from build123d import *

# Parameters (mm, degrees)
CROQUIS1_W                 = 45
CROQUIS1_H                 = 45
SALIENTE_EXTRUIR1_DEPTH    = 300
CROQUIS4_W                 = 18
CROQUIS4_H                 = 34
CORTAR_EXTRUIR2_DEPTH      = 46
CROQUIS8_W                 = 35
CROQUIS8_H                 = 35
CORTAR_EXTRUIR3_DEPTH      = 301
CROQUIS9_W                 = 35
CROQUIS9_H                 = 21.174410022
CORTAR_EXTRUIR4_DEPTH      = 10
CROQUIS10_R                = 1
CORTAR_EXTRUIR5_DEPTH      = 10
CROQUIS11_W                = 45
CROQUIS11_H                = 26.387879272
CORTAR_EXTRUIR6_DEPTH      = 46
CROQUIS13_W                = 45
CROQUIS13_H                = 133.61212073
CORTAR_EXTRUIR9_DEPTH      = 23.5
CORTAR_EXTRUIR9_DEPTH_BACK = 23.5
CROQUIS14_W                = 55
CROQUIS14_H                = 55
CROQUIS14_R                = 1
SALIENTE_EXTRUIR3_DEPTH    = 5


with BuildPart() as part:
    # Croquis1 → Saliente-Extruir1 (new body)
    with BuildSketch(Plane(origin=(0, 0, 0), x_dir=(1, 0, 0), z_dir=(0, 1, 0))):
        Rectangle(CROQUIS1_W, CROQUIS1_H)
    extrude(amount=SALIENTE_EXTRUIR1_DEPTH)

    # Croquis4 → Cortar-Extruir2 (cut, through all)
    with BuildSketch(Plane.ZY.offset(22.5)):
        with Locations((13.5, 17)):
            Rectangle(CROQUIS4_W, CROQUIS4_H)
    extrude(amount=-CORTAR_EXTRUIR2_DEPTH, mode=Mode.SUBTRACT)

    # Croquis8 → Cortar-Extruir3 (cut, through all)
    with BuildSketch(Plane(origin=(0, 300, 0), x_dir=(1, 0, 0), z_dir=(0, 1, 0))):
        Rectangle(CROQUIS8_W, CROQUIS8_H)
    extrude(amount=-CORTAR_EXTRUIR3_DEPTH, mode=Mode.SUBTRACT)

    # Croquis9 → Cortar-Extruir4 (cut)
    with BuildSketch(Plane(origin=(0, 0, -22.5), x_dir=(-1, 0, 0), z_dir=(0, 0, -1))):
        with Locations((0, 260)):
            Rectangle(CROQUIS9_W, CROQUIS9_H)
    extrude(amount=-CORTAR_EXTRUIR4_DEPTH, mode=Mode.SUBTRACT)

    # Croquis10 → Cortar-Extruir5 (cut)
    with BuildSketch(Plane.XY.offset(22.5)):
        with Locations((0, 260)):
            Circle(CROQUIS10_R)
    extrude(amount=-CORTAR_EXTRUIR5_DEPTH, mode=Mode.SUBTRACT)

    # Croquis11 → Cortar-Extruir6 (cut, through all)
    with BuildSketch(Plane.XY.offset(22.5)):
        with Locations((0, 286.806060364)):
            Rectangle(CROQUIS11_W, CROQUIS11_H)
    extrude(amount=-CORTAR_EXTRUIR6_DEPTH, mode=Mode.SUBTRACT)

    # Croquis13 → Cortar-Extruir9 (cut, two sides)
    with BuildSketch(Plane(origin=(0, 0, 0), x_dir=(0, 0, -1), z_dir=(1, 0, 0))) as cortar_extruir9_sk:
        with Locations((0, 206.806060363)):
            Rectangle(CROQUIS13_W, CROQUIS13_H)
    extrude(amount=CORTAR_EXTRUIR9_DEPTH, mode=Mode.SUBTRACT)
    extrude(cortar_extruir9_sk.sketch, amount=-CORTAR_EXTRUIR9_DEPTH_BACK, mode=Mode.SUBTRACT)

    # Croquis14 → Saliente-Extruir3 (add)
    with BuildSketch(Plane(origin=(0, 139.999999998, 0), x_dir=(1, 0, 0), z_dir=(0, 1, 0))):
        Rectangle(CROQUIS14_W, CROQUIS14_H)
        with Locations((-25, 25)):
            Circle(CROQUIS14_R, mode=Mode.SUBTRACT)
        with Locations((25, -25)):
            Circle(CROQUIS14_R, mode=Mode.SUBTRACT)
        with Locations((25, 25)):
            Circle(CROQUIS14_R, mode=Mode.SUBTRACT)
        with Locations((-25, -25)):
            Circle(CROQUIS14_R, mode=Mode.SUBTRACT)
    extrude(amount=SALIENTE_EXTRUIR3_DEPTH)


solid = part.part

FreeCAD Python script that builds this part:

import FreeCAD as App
import Part
import Sketcher
from FreeCAD import Vector
Q = App.Units.Quantity

doc = App.newDocument("Part")
params = doc.addObject("Spreadsheet::Sheet", "Params")
for row, (alias, value) in enumerate([
    ("sketch1_width", "45 mm"),
    ("pad1_length", "300 mm"),
    ("sketch2_width", "34 mm"),
    ("sketch2_height", "18 mm"),
    ("sketch3_width", "35 mm"),
    ("sketch4_width", "35 mm"),
    ("pocket3_length", "10 mm"),
    ("sketch5_diameter", "2 mm"),
    ("pocket4_length", "10 mm"),
    ("sketch6_width", "45 mm"),
    ("sketch7_height", "45 mm"),
    ("sketch8_diameter", "2 mm"),
    ("sketch8_width", "55 mm"),
    ("pad2_length", "5 mm"),
], start=1):
    params.set(f"A{row}", alias)
    params.set(f"B{row}", "=" + value)
    params.setAlias(f"B{row}", alias)

body = doc.addObject("PartDesign::Body", "Body")

sketch1 = body.newObject("Sketcher::SketchObject", "Sketch")
sketch1.AttachmentSupport = (doc.getObject("XZ_Plane"), [""])
sketch1.MapMode = "FlatFace"
sketch1.addGeometry(Part.LineSegment(Vector(-22, -22, 0), Vector(-22, 22, 0)), False)
sketch1.addGeometry(Part.LineSegment(Vector(-22, 22, 0), Vector(22, 22, 0)), False)
sketch1.addGeometry(Part.LineSegment(Vector(22, 22, 0), Vector(22, -22, 0)), False)
sketch1.addGeometry(Part.LineSegment(Vector(22, -22, 0), Vector(-22, -22, 0)), False)
sketch1.addConstraint(Sketcher.Constraint("Coincident", 0, 2, 1, 1))
sketch1.addConstraint(Sketcher.Constraint("Coincident", 1, 2, 2, 1))
sketch1.addConstraint(Sketcher.Constraint("Coincident", 2, 2, 3, 1))
sketch1.addConstraint(Sketcher.Constraint("Coincident", 3, 2, 0, 1))
sketch1.addConstraint(Sketcher.Constraint("Vertical", 0))
sketch1.addConstraint(Sketcher.Constraint("Horizontal", 1))
sketch1.addConstraint(Sketcher.Constraint("Vertical", 2))
sketch1.addConstraint(Sketcher.Constraint("Horizontal", 3))
sketch1.addConstraint(Sketcher.Constraint("Symmetric", 0, 2, 2, 2, -1, 1))
sketch1.addConstraint(Sketcher.Constraint("Equal", 3, 0))
sketch1.addConstraint(Sketcher.Constraint("DistanceX", 1, 1, 1, 2, Q("45 mm")))
sketch1.setExpression("Constraints[10]", "Params.sketch1_width")
pad1 = body.newObject("PartDesign::Pad", "Pad")
pad1.Profile = sketch1
pad1.setExpression("Length", "Params.pad1_length")
pad1.Reversed = True

sketch2 = body.newObject("Sketcher::SketchObject", "Sketch001")
sketch2.AttachmentSupport = (doc.getObject("YZ_Plane"), [""])
sketch2.MapMode = "FlatFace"
sketch2.AttachmentOffset = App.Placement(Vector(0, 0, -22.5), App.Rotation())
sketch2.addGeometry(Part.LineSegment(Vector(34, 4, 0), Vector(0, 4, 0)), False)
sketch2.addGeometry(Part.LineSegment(Vector(0, 4, 0), Vector(0, 22, 0)), False)
sketch2.addGeometry(Part.LineSegment(Vector(0, 22, 0), Vector(34, 22, 0)), False)
sketch2.addGeometry(Part.LineSegment(Vector(34, 22, 0), Vector(34, 4, 0)), False)
sketch2.addConstraint(Sketcher.Constraint("Coincident", 0, 2, 1, 1))
sketch2.addConstraint(Sketcher.Constraint("Coincident", 1, 2, 2, 1))
sketch2.addConstraint(Sketcher.Constraint("Coincident", 2, 2, 3, 1))
sketch2.addConstraint(Sketcher.Constraint("Coincident", 3, 2, 0, 1))
sketch2.addConstraint(Sketcher.Constraint("Horizontal", 0))
sketch2.addConstraint(Sketcher.Constraint("Vertical", 1))
sketch2.addConstraint(Sketcher.Constraint("Horizontal", 2))
sketch2.addConstraint(Sketcher.Constraint("Vertical", 3))
sketch2.addConstraint(Sketcher.Constraint("PointOnObject", 0, 2, -2))
sketch2.addConstraint(Sketcher.Constraint("DistanceX", 0, 2, 0, 1, Q("34 mm")))
sketch2.addConstraint(Sketcher.Constraint("DistanceY", 1, 1, 1, 2, Q("18 mm")))
sketch2.addConstraint(Sketcher.Constraint("DistanceY", -1, 1, 0, 2, Q("4.5 mm")))
sketch2.setExpression("Constraints[9]", "Params.sketch2_width")
sketch2.setExpression("Constraints[10]", "Params.sketch2_height")
pocket1 = body.newObject("PartDesign::Pocket", "Pocket")
pocket1.Profile = sketch2
pocket1.Type = "ThroughAll"
pocket1.Reversed = True

sketch3 = body.newObject("Sketcher::SketchObject", "Sketch002")
sketch3.AttachmentSupport = (doc.getObject("XZ_Plane"), [""])
sketch3.MapMode = "FlatFace"
sketch3.AttachmentOffset = App.Placement(Vector(0, 0, -300), App.Rotation())
sketch3.addGeometry(Part.LineSegment(Vector(-18, -18, 0), Vector(-18, 18, 0)), False)
sketch3.addGeometry(Part.LineSegment(Vector(-18, 18, 0), Vector(18, 18, 0)), False)
sketch3.addGeometry(Part.LineSegment(Vector(18, 18, 0), Vector(18, -18, 0)), False)
sketch3.addGeometry(Part.LineSegment(Vector(18, -18, 0), Vector(-18, -18, 0)), False)
sketch3.addConstraint(Sketcher.Constraint("Coincident", 0, 2, 1, 1))
sketch3.addConstraint(Sketcher.Constraint("Coincident", 1, 2, 2, 1))
sketch3.addConstraint(Sketcher.Constraint("Coincident", 2, 2, 3, 1))
sketch3.addConstraint(Sketcher.Constraint("Coincident", 3, 2, 0, 1))
sketch3.addConstraint(Sketcher.Constraint("Vertical", 0))
sketch3.addConstraint(Sketcher.Constraint("Horizontal", 1))
sketch3.addConstraint(Sketcher.Constraint("Vertical", 2))
sketch3.addConstraint(Sketcher.Constraint("Horizontal", 3))
sketch3.addConstraint(Sketcher.Constraint("Symmetric", 0, 2, 2, 2, -1, 1))
sketch3.addConstraint(Sketcher.Constraint("Equal", 3, 0))
sketch3.addConstraint(Sketcher.Constraint("DistanceX", 1, 1, 1, 2, Q("35 mm")))
sketch3.setExpression("Constraints[10]", "Params.sketch3_width")
pocket2 = body.newObject("PartDesign::Pocket", "Pocket001")
pocket2.Profile = sketch3
pocket2.Type = "ThroughAll"
pocket2.Reversed = True

sketch4 = body.newObject("Sketcher::SketchObject", "Sketch003")
sketch4.AttachmentSupport = (doc.getObject("XY_Plane"), [""])
sketch4.MapMode = "FlatFace"
sketch4.AttachmentOffset = App.Placement(Vector(0, 0, -22.5), App.Rotation())
sketch4.addGeometry(Part.LineSegment(Vector(18, 271, 0), Vector(18, 249, 0)), False)
sketch4.addGeometry(Part.LineSegment(Vector(18, 249, 0), Vector(-18, 249, 0)), False)
sketch4.addGeometry(Part.LineSegment(Vector(-18, 249, 0), Vector(-18, 271, 0)), False)
sketch4.addGeometry(Part.LineSegment(Vector(-18, 271, 0), Vector(18, 271, 0)), False)
sketch4.addConstraint(Sketcher.Constraint("Coincident", 0, 2, 1, 1))
sketch4.addConstraint(Sketcher.Constraint("Coincident", 1, 2, 2, 1))
sketch4.addConstraint(Sketcher.Constraint("Coincident", 2, 2, 3, 1))
sketch4.addConstraint(Sketcher.Constraint("Coincident", 3, 2, 0, 1))
sketch4.addConstraint(Sketcher.Constraint("Vertical", 0))
sketch4.addConstraint(Sketcher.Constraint("Horizontal", 1))
sketch4.addConstraint(Sketcher.Constraint("Vertical", 2))
sketch4.addConstraint(Sketcher.Constraint("Horizontal", 3))
sketch4.addConstraint(Sketcher.Constraint("DistanceX", 1, 2, 1, 1, Q("35 mm")))
sketch4.addConstraint(Sketcher.Constraint("DistanceX", -1, 1, 0, 2, Q("17.5 mm")))
sketch4.addConstraint(Sketcher.Constraint("DistanceY", 0, 2, 0, 1, Q("21.17441 mm")))
sketch4.addConstraint(Sketcher.Constraint("DistanceY", -1, 1, 0, 2, Q("249.412795 mm")))
sketch4.setExpression("Constraints[8]", "Params.sketch4_width")
pocket3 = body.newObject("PartDesign::Pocket", "Pocket002")
pocket3.Profile = sketch4
pocket3.setExpression("Length", "Params.pocket3_length")
pocket3.Reversed = True

sketch5 = body.newObject("Sketcher::SketchObject", "Sketch004")
sketch5.AttachmentSupport = (doc.getObject("XY_Plane"), [""])
sketch5.MapMode = "FlatFace"
sketch5.AttachmentOffset = App.Placement(Vector(0, 0, 22.5), App.Rotation())
sketch5.addGeometry(Part.Circle(Vector(0, 260, 0), Vector(0, 0, 1), 1), False)
sketch5.addConstraint(Sketcher.Constraint("PointOnObject", 0, 3, -2))
sketch5.addConstraint(Sketcher.Constraint("Diameter", 0, Q("2 mm")))
sketch5.addConstraint(Sketcher.Constraint("DistanceY", -1, 1, 0, 3, Q("260 mm")))
sketch5.setExpression("Constraints[1]", "Params.sketch5_diameter")
pocket4 = body.newObject("PartDesign::Pocket", "Pocket003")
pocket4.Profile = sketch5
pocket4.setExpression("Length", "Params.pocket4_length")

sketch6 = body.newObject("Sketcher::SketchObject", "Sketch005")
sketch6.AttachmentSupport = (doc.getObject("XY_Plane"), [""])
sketch6.MapMode = "FlatFace"
sketch6.AttachmentOffset = App.Placement(Vector(0, 0, 22.5), App.Rotation())
sketch6.addGeometry(Part.LineSegment(Vector(-22, 300, 0), Vector(-22, 274, 0)), False)
sketch6.addGeometry(Part.LineSegment(Vector(-22, 274, 0), Vector(22, 274, 0)), False)
sketch6.addGeometry(Part.LineSegment(Vector(22, 274, 0), Vector(22, 300, 0)), False)
sketch6.addGeometry(Part.LineSegment(Vector(22, 300, 0), Vector(-22, 300, 0)), False)
sketch6.addConstraint(Sketcher.Constraint("Coincident", 0, 2, 1, 1))
sketch6.addConstraint(Sketcher.Constraint("Coincident", 1, 2, 2, 1))
sketch6.addConstraint(Sketcher.Constraint("Coincident", 2, 2, 3, 1))
sketch6.addConstraint(Sketcher.Constraint("Coincident", 3, 2, 0, 1))
sketch6.addConstraint(Sketcher.Constraint("Vertical", 0))
sketch6.addConstraint(Sketcher.Constraint("Horizontal", 1))
sketch6.addConstraint(Sketcher.Constraint("Vertical", 2))
sketch6.addConstraint(Sketcher.Constraint("Horizontal", 3))
sketch6.addConstraint(Sketcher.Constraint("DistanceX", 1, 1, 1, 2, Q("45 mm")))
sketch6.addConstraint(Sketcher.Constraint("DistanceY", -1, 1, 2, 2, Q("300 mm")))
sketch6.addConstraint(Sketcher.Constraint("DistanceX", 0, 2, -1, 1, Q("22.5 mm")))
sketch6.addConstraint(Sketcher.Constraint("DistanceY", 0, 2, 0, 1, Q("26.387879 mm")))
sketch6.setExpression("Constraints[8]", "Params.sketch6_width")
pocket5 = body.newObject("PartDesign::Pocket", "Pocket004")
pocket5.Profile = sketch6
pocket5.Type = "ThroughAll"

sketch7 = body.newObject("Sketcher::SketchObject", "Sketch006")
sketch7.AttachmentSupport = (doc.getObject("YZ_Plane"), [""])
sketch7.MapMode = "FlatFace"
sketch7.addGeometry(Part.LineSegment(Vector(274, 22, 0), Vector(140, 22, 0)), False)
sketch7.addGeometry(Part.LineSegment(Vector(140, 22, 0), Vector(140, -22, 0)), False)
sketch7.addGeometry(Part.LineSegment(Vector(140, -22, 0), Vector(274, -22, 0)), False)
sketch7.addGeometry(Part.LineSegment(Vector(274, -22, 0), Vector(274, 22, 0)), False)
sketch7.addConstraint(Sketcher.Constraint("Coincident", 0, 2, 1, 1))
sketch7.addConstraint(Sketcher.Constraint("Coincident", 1, 2, 2, 1))
sketch7.addConstraint(Sketcher.Constraint("Coincident", 2, 2, 3, 1))
sketch7.addConstraint(Sketcher.Constraint("Coincident", 3, 2, 0, 1))
sketch7.addConstraint(Sketcher.Constraint("Horizontal", 0))
sketch7.addConstraint(Sketcher.Constraint("Vertical", 1))
sketch7.addConstraint(Sketcher.Constraint("Horizontal", 2))
sketch7.addConstraint(Sketcher.Constraint("Vertical", 3))
sketch7.addConstraint(Sketcher.Constraint("DistanceY", 1, 2, 1, 1, Q("45 mm")))
sketch7.addConstraint(Sketcher.Constraint("DistanceX", -1, 1, 0, 2, Q("140 mm")))
sketch7.addConstraint(Sketcher.Constraint("DistanceY", -1, 1, 0, 2, Q("22.5 mm")))
sketch7.addConstraint(Sketcher.Constraint("DistanceX", 0, 2, 0, 1, Q("133.612121 mm")))
sketch7.setExpression("Constraints[8]", "Params.sketch7_height")
pocket6 = body.newObject("PartDesign::Pocket", "Pocket005")
pocket6.Profile = sketch7
pocket6.Type = "ThroughAll"
pocket6.Midplane = True

sketch8 = body.newObject("Sketcher::SketchObject", "Sketch007")
sketch8.AttachmentSupport = (doc.getObject("XZ_Plane"), [""])
sketch8.MapMode = "FlatFace"
sketch8.AttachmentOffset = App.Placement(Vector(0, 0, -140), App.Rotation())
sketch8.addGeometry(Part.LineSegment(Vector(-27.5, -27.5, 0), Vector(-27.5, 27.5, 0)), False)
sketch8.addGeometry(Part.LineSegment(Vector(-27.5, 27.5, 0), Vector(27.5, 27.5, 0)), False)
sketch8.addGeometry(Part.LineSegment(Vector(27.5, 27.5, 0), Vector(27.5, -27.5, 0)), False)
sketch8.addGeometry(Part.LineSegment(Vector(27.5, -27.5, 0), Vector(-27.5, -27.5, 0)), False)
sketch8.addGeometry(Part.Circle(Vector(-25, 25, 0), Vector(0, 0, 1), 1), False)
sketch8.addGeometry(Part.Circle(Vector(25, 25, 0), Vector(0, 0, 1), 1), False)
sketch8.addGeometry(Part.Circle(Vector(-25, -25, 0), Vector(0, 0, 1), 1), False)
sketch8.addGeometry(Part.Circle(Vector(25, -25, 0), Vector(0, 0, 1), 1), False)
sketch8.addConstraint(Sketcher.Constraint("Coincident", 0, 2, 1, 1))
sketch8.addConstraint(Sketcher.Constraint("Coincident", 1, 2, 2, 1))
sketch8.addConstraint(Sketcher.Constraint("Coincident", 2, 2, 3, 1))
sketch8.addConstraint(Sketcher.Constraint("Coincident", 3, 2, 0, 1))
sketch8.addConstraint(Sketcher.Constraint("Vertical", 0))
sketch8.addConstraint(Sketcher.Constraint("Horizontal", 1))
sketch8.addConstraint(Sketcher.Constraint("Vertical", 2))
sketch8.addConstraint(Sketcher.Constraint("Horizontal", 3))
sketch8.addConstraint(Sketcher.Constraint("Equal", 4, 5))
sketch8.addConstraint(Sketcher.Constraint("Equal", 5, 6))
sketch8.addConstraint(Sketcher.Constraint("Equal", 6, 7))
sketch8.addConstraint(Sketcher.Constraint("Symmetric", 5, 3, 6, 3, -1, 1))
sketch8.addConstraint(Sketcher.Constraint("Symmetric", 4, 3, 7, 3, -1, 1))
sketch8.addConstraint(Sketcher.Constraint("Symmetric", 0, 2, 2, 2, -1, 1))
sketch8.addConstraint(Sketcher.Constraint("Symmetric", 4, 3, 5, 3, -2))
sketch8.addConstraint(Sketcher.Constraint("Equal", 3, 0))
sketch8.addConstraint(Sketcher.Constraint("Diameter", 4, Q("2 mm")))
sketch8.addConstraint(Sketcher.Constraint("DistanceX", 1, 1, 1, 2, Q("55 mm")))
sketch8.addConstraint(Sketcher.Constraint("DistanceX", 4, 3, -1, 1, Q("25 mm")))
sketch8.addConstraint(Sketcher.Constraint("DistanceY", -1, 1, 4, 3, Q("25 mm")))
sketch8.setExpression("Constraints[16]", "Params.sketch8_diameter")
sketch8.setExpression("Constraints[17]", "Params.sketch8_width")
pad2 = body.newObject("PartDesign::Pad", "Pad001")
pad2.Profile = sketch8
pad2.setExpression("Length", "Params.pad2_length")
pad2.Reversed = True

doc.recompute()
